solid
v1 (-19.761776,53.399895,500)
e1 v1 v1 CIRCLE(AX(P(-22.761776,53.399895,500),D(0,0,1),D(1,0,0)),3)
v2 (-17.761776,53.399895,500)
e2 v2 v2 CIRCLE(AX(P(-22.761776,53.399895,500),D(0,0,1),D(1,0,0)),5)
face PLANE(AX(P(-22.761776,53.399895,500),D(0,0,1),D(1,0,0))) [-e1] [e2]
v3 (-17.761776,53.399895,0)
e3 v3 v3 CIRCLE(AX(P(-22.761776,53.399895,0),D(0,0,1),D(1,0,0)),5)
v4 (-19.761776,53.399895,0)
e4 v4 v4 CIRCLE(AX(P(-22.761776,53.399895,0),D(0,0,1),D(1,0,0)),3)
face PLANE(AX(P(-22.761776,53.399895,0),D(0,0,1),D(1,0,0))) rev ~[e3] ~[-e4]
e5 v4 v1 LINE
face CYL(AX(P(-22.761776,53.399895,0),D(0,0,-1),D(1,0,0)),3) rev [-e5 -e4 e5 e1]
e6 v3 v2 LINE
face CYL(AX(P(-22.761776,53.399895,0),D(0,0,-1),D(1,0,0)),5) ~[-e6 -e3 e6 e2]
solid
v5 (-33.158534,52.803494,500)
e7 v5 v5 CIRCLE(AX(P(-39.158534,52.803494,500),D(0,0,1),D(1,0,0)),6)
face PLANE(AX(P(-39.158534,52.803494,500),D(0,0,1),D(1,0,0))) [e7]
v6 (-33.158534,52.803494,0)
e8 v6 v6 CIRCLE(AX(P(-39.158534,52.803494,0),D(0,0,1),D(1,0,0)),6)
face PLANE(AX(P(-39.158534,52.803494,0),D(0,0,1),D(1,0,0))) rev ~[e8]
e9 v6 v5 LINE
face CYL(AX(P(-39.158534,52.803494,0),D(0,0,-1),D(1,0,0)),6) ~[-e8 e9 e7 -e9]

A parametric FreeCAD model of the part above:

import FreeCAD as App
import Part
import Sketcher
from FreeCAD import Vector
Q = App.Units.Quantity

doc = App.newDocument("Part")
body = doc.addObject("PartDesign::Body", "Body")
body.AllowCompound = True

sketch1 = doc.addObject("Sketcher::SketchObject", "Sketch")
body.addObject(sketch1)
sketch1.AttachmentSupport = (doc.XY_Plane, [""])
sketch1.MapMode = "FlatFace"
sketch1.addGeometry([
    Part.Circle(Vector(-39.2, 52.8, 0), Vector(0, 0, 1), 6),
    Part.Circle(Vector(-22.8, 53.4, 0), Vector(0, 0, 1), 5),
    Part.Circle(Vector(-22.8, 53.4, 0), Vector(0, 0, 1), 3),
], False)
sketch1.addConstraint([
    Sketcher.Constraint("Coincident", 2, 3, 1, 3),
    Sketcher.Constraint("Diameter", 0, Q("12 mm")),
    Sketcher.Constraint("Diameter", 1, Q("10 mm")),
    Sketcher.Constraint("Diameter", 2, Q("6 mm")),
    Sketcher.Constraint("DistanceY", 0, 3, 1, 3, Q("0.596401 mm")),
    Sketcher.Constraint("DistanceX", 0, 3, 1, 3, Q("16.396758 mm")),
    Sketcher.Constraint("DistanceX", 0, 3, -1, 1, Q("39.158534 mm")),
    Sketcher.Constraint("DistanceY", -1, 1, 0, 3, Q("52.803494 mm")),
])
pad1 = doc.addObject("PartDesign::Pad", "Pad")
body.addObject(pad1)
pad1.Profile = sketch1
pad1.Length = 500

doc.recompute()
